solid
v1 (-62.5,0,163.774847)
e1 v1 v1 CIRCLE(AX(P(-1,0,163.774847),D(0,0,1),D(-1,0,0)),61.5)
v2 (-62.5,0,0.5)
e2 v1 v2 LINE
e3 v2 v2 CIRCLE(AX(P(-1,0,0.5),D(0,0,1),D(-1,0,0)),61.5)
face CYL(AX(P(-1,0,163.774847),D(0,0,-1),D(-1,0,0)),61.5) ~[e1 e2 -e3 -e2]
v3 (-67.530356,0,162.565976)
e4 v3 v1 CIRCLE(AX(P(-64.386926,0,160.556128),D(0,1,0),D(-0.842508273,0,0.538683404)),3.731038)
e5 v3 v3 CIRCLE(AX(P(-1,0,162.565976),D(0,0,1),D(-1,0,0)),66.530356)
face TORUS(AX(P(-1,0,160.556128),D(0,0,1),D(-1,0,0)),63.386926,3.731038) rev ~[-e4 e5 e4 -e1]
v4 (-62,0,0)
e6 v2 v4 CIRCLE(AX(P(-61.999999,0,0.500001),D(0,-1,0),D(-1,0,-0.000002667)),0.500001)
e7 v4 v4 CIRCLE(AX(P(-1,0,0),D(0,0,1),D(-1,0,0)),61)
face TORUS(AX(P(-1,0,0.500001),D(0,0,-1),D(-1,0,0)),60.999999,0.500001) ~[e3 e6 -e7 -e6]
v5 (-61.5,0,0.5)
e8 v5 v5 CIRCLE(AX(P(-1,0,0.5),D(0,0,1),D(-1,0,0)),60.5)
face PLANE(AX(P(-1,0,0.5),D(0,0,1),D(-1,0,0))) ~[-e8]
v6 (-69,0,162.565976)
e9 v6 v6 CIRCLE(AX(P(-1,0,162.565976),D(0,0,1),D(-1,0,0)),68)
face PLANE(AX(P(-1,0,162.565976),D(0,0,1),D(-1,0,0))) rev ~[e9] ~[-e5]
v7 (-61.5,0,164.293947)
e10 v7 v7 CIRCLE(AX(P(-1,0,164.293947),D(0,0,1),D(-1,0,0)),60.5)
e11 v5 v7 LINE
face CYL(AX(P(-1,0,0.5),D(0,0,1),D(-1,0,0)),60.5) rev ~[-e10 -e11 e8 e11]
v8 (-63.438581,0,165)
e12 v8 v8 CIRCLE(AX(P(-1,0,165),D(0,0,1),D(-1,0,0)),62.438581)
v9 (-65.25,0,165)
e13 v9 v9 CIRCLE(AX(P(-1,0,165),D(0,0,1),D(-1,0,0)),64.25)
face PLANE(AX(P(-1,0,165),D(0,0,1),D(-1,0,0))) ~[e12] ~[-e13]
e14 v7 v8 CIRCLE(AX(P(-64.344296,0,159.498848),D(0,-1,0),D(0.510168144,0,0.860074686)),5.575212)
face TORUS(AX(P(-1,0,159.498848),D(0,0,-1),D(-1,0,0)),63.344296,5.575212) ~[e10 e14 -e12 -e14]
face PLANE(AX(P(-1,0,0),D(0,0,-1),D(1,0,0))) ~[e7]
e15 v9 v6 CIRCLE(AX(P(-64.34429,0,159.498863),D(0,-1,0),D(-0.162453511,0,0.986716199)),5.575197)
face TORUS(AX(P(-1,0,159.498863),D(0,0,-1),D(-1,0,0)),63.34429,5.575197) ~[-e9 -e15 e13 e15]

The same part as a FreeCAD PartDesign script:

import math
import FreeCAD as App
import Part
import Sketcher

V = App.Vector

doc = App.newDocument("Part")
body = doc.addObject("PartDesign::Body", "Body")

# Sketch on XZ plane
sketch1 = doc.addObject("Sketcher::SketchObject", "Sketch")
body.addObject(sketch1)
sketch1.AttachmentSupport = (doc.XZ_Plane, [""])
sketch1.MapMode = "FlatFace"
sketch1.addGeometry(Part.LineSegment(V(-1, 0, 0), V(-1, 0.5, 0)), False)
sketch1.addGeometry(Part.LineSegment(V(-1, 0.5, 0), V(-61.5, 0.5, 0)), False)
sketch1.addGeometry(Part.LineSegment(V(-61.5, 0.5, 0), V(-61.5, 164.3, 0)), False)
sketch1.addGeometry(Part.ArcOfCircle(Part.Circle(V(-64.3, 159.5, 0), V(0, 0, 1), 5.6), math.radians(59), math.radians(81)), False)
sketch1.addGeometry(Part.LineSegment(V(-63.4, 165, 0), V(-65.2, 165, 0)), False)
sketch1.addGeometry(Part.ArcOfCircle(Part.Circle(V(-64.3, 159.5, 0), V(0, 0, 1), 5.6), math.radians(99), math.radians(147)), False)
sketch1.addGeometry(Part.LineSegment(V(-69, 162.6, 0), V(-67.5, 162.6, 0)), False)
sketch1.addGeometry(Part.ArcOfCircle(Part.Circle(V(-64.4, 160.6, 0), V(0, 0, 1), 3.7), math.radians(60), math.radians(147)), False)
sketch1.addGeometry(Part.LineSegment(V(-62.5, 163.8, 0), V(-62.5, 0.5, 0)), False)
sketch1.addGeometry(Part.ArcOfCircle(Part.Circle(V(-62, 0.5, 0), V(0, 0, 1), 0.5), math.radians(-180), math.radians(-90)), False)
sketch1.addGeometry(Part.LineSegment(V(-62, 0, 0), V(-1, 0, 0)), False)
sketch1.addGeometry(Part.LineSegment(V(-1, 0, 0), V(-1, 165, 0)), True)  # axis
sketch1.addConstraint(Sketcher.Constraint("Coincident", 0, 2, 1, 1))
sketch1.addConstraint(Sketcher.Constraint("Coincident", 1, 2, 2, 1))
sketch1.addConstraint(Sketcher.Constraint("Coincident", 2, 2, 3, 1))
sketch1.addConstraint(Sketcher.Constraint("Coincident", 3, 2, 4, 1))
sketch1.addConstraint(Sketcher.Constraint("Coincident", 4, 2, 5, 1))
sketch1.addConstraint(Sketcher.Constraint("Coincident", 5, 2, 6, 1))
sketch1.addConstraint(Sketcher.Constraint("Coincident", 6, 2, 7, 2))
sketch1.addConstraint(Sketcher.Constraint("Coincident", 7, 1, 8, 1))
sketch1.addConstraint(Sketcher.Constraint("Coincident", 8, 2, 9, 1))
sketch1.addConstraint(Sketcher.Constraint("Coincident", 9, 2, 10, 1))
sketch1.addConstraint(Sketcher.Constraint("Coincident", 10, 2, 0, 1))
sketch1.addConstraint(Sketcher.Constraint("Vertical", 0))
sketch1.addConstraint(Sketcher.Constraint("Horizontal", 1))
sketch1.addConstraint(Sketcher.Constraint("Vertical", 2))
sketch1.addConstraint(Sketcher.Constraint("Horizontal", 4))
sketch1.addConstraint(Sketcher.Constraint("Horizontal", 6))
sketch1.addConstraint(Sketcher.Constraint("Vertical", 8))
sketch1.addConstraint(Sketcher.Constraint("Horizontal", 10))
sketch1.addConstraint(Sketcher.Constraint("Vertical", 11))
sketch1.addConstraint(Sketcher.Constraint("Coincident", 11, 1, 10, 2))
sketch1.addConstraint(Sketcher.Constraint("PointOnObject", 9, 2, -1))
sketch1.addConstraint(Sketcher.Constraint("Horizontal", 9, 3, 0, 2))
sketch1.addConstraint(Sketcher.Constraint("Horizontal", 1, 2, 8, 2))
sketch1.addConstraint(Sketcher.Constraint("Horizontal", 4, 2, 11, 2))
sketch1.addConstraint(Sketcher.Constraint("Radius", 9, 0.500001))
sketch1.addConstraint(Sketcher.Constraint("DistanceX", 10, 1, 10, 2, 61.0))
sketch1.addConstraint(Sketcher.Constraint("DistanceY", 11, 1, 11, 2, 165.0))
sketch1.addConstraint(Sketcher.Constraint("DistanceX", 1, 2, 1, 1, 60.5))
sketch1.addConstraint(Sketcher.Constraint("DistanceX", 9, 3, -1, 1, 61.999999))
sketch1.addConstraint(Sketcher.Constraint("DistanceX", 0, 2, -1, 1, 1.0))
sketch1.addConstraint(Sketcher.Constraint("DistanceX", 5, 2, -1, 1, 69.0))
sketch1.addConstraint(Sketcher.Constraint("DistanceX", 4, 2, -1, 1, 65.25))
sketch1.addConstraint(Sketcher.Constraint("Radius", 3, 5.575212))
sketch1.addConstraint(Sketcher.Constraint("Radius", 5, 5.575197))
sketch1.addConstraint(Sketcher.Constraint("Radius", 7, 3.731038))
sketch1.addConstraint(Sketcher.Constraint("DistanceX", 4, 2, 4, 1, 1.811419))
sketch1.addConstraint(Sketcher.Constraint("DistanceY", 3, 3, 2, 2, 4.795099))
sketch1.addConstraint(Sketcher.Constraint("DistanceY", 7, 1, 2, 2, 0.5191))
sketch1.addConstraint(Sketcher.Constraint("DistanceX", 6, 1, 6, 2, 1.469644))
sketch1.addConstraint(Sketcher.Constraint("DistanceX", 5, 3, -1, 1, 64.34429))
revolution = doc.addObject("PartDesign::Revolution", "Revolution")
body.addObject(revolution)
revolution.Profile = sketch1
revolution.ReferenceAxis = (sketch1, ["Axis0"])
revolution.Angle = 360

doc.recompute()
